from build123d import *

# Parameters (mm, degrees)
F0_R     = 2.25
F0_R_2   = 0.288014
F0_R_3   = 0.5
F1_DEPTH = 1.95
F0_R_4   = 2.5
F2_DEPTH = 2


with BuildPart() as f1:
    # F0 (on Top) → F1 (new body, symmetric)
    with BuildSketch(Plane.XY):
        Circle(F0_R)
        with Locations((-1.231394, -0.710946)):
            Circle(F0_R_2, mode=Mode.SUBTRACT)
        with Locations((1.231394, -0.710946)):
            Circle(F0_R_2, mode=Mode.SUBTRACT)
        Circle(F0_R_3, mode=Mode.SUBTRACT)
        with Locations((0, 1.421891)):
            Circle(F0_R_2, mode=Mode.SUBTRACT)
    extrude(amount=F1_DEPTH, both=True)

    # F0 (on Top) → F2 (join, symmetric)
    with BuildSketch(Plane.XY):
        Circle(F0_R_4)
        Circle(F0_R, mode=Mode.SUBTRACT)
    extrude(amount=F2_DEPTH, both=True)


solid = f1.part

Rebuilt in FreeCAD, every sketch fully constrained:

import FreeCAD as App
import Part
import Sketcher

V = App.Vector
Q = App.Units.Quantity

doc = App.newDocument("Part")
body = doc.addObject("PartDesign::Body", "Body")

# Sketch on XY plane
sketch1 = body.newObject("Sketcher::SketchObject", "Sketch")
sketch1.AttachmentSupport = (doc.getObject("XY_Plane"), [""])
sketch1.MapMode = "FlatFace"
sketch1.addGeometry(Part.Circle(V(0, 0, 0), V(0, 0, 1), 2.25), False)
sketch1.addGeometry(Part.Circle(V(-1.231394, -0.710946, 0), V(0, 0, 1), 0.288014), False)
sketch1.addGeometry(Part.Circle(V(1.231394, -0.710946, 0), V(0, 0, 1), 0.288014), False)
sketch1.addGeometry(Part.Circle(V(0, 0, 0), V(0, 0, 1), 0.5), False)
sketch1.addGeometry(Part.Circle(V(0, 1.421891, 0), V(0, 0, 1), 0.288014), False)
sketch1.addConstraint(Sketcher.Constraint("Coincident", 0, 3, -1, 1))
sketch1.addConstraint(Sketcher.Constraint("Coincident", 3, 3, -1, 1))
sketch1.addConstraint(Sketcher.Constraint("Equal", 1, 2))
sketch1.addConstraint(Sketcher.Constraint("Equal", 2, 4))
sketch1.addConstraint(Sketcher.Constraint("Symmetric", 1, 3, 2, 3, -2))
sketch1.addConstraint(Sketcher.Constraint("PointOnObject", 4, 3, -2))
sketch1.addConstraint(Sketcher.Constraint("Diameter", 3, Q("1 mm")))
sketch1.addConstraint(Sketcher.Constraint("Diameter", 0, Q("4.5 mm")))
sketch1.addConstraint(Sketcher.Constraint("Diameter", 1, Q("0.576028 mm")))
sketch1.addConstraint(Sketcher.Constraint("DistanceY", -1, 1, 4, 3, Q("1.421891 mm")))
sketch1.addConstraint(Sketcher.Constraint("DistanceX", 1, 3, 2, 3, Q("2.462788 mm")))
sketch1.addConstraint(Sketcher.Constraint("DistanceY", 1, 3, -1, 1, Q("0.710946 mm")))
pad1 = body.newObject("PartDesign::Pad", "Pad")
pad1.Profile = sketch1
pad1.Length = 3.9
pad1.Midplane = True

# Sketch on XY plane
sketch2 = body.newObject("Sketcher::SketchObject", "Sketch001")
sketch2.AttachmentSupport = (doc.getObject("XY_Plane"), [""])
sketch2.MapMode = "FlatFace"
sketch2.addGeometry(Part.Circle(V(0, 0, 0), V(0, 0, 1), 2.5), False)
sketch2.addGeometry(Part.Circle(V(0, 0, 0), V(0, 0, 1), 2.25), False)
sketch2.addConstraint(Sketcher.Constraint("Coincident", 0, 3, -1, 1))
sketch2.addConstraint(Sketcher.Constraint("Coincident", 1, 3, -1, 1))
sketch2.addConstraint(Sketcher.Constraint("Diameter", 0, Q("5 mm")))
sketch2.addConstraint(Sketcher.Constraint("Diameter", 1, Q("4.5 mm")))
pad2 = body.newObject("PartDesign::Pad", "Pad001")
pad2.Profile = sketch2
pad2.Length = 4
pad2.Midplane = True

doc.recompute()
